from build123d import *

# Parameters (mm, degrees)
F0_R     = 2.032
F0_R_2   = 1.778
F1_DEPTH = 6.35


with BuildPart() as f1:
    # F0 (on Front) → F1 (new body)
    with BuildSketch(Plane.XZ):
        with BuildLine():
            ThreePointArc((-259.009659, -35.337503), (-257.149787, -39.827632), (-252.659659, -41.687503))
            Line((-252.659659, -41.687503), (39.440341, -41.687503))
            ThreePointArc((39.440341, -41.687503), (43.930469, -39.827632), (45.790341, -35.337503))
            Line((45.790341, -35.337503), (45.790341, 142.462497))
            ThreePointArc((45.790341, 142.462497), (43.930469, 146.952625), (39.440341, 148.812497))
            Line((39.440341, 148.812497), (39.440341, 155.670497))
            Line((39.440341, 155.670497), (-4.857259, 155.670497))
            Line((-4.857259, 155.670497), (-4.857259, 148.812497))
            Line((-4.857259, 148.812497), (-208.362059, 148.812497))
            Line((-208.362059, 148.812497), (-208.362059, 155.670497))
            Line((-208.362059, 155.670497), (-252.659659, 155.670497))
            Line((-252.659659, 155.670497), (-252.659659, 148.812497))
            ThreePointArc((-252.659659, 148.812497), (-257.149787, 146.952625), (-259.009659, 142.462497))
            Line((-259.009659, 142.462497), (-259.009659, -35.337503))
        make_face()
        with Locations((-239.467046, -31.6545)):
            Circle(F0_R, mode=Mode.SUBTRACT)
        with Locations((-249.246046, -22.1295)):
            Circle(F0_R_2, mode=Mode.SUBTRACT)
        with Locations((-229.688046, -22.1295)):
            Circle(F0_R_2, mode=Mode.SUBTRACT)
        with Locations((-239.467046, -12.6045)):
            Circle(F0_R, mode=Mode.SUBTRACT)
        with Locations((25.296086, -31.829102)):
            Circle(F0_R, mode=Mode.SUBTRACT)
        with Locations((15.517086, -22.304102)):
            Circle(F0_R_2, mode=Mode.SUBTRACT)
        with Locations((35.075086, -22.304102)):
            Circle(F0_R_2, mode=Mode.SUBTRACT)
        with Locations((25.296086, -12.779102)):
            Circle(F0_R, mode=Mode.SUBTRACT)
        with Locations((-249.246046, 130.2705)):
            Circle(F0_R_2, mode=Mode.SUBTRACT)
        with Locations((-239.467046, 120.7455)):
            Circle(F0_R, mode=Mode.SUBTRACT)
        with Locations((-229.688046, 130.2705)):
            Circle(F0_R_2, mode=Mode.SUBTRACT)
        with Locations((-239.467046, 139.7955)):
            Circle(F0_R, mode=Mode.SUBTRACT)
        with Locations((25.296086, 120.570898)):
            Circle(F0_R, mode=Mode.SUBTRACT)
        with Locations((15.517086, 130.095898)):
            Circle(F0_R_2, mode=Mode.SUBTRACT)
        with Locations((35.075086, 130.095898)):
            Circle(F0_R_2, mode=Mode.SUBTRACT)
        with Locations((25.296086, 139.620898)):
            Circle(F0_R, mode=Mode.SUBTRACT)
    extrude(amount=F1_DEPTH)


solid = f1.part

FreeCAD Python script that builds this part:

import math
import FreeCAD as App
import Part
import Sketcher
from FreeCAD import Vector
Q = App.Units.Quantity

doc = App.newDocument("Part")
body = doc.addObject("PartDesign::Body", "Body")

sketch1 = doc.addObject("Sketcher::SketchObject", "Sketch")
body.addObject(sketch1)
sketch1.AttachmentSupport = (doc.XZ_Plane, [""])
sketch1.MapMode = "FlatFace"
sketch1.addGeometry([
    Part.ArcOfCircle(Part.Circle(Vector(-252.7, -35.3, 0), Vector(0, 0, 1), 6.3), math.radians(180), math.radians(270)),
    Part.LineSegment(Vector(-252.7, -41.7, 0), Vector(39.4, -41.7, 0)),
    Part.ArcOfCircle(Part.Circle(Vector(39.4, -35.3, 0), Vector(0, 0, 1), 6.3), math.radians(-90), math.radians(0)),
    Part.LineSegment(Vector(45.8, -35.3, 0), Vector(45.8, 142.5, 0)),
    Part.ArcOfCircle(Part.Circle(Vector(39.4, 142.5, 0), Vector(0, 0, 1), 6.4), math.radians(0), math.radians(90)),
    Part.LineSegment(Vector(39.4, 148.8, 0), Vector(39.4, 155.7, 0)),
    Part.LineSegment(Vector(39.4, 155.7, 0), Vector(-4.9, 155.7, 0)),
    Part.LineSegment(Vector(-4.9, 155.7, 0), Vector(-4.9, 148.8, 0)),
    Part.LineSegment(Vector(-4.9, 148.8, 0), Vector(-208.4, 148.8, 0)),
    Part.LineSegment(Vector(-208.4, 148.8, 0), Vector(-208.4, 155.7, 0)),
    Part.LineSegment(Vector(-208.4, 155.7, 0), Vector(-252.7, 155.7, 0)),
    Part.LineSegment(Vector(-252.7, 155.7, 0), Vector(-252.7, 148.8, 0)),
    Part.ArcOfCircle(Part.Circle(Vector(-252.7, 142.5, 0), Vector(0, 0, 1), 6.4), math.radians(90), math.radians(180)),
    Part.LineSegment(Vector(-259, 142.5, 0), Vector(-259, -35.3, 0)),
    Part.Circle(Vector(-239.5, -31.7, 0), Vector(0, 0, 1), 2),
    Part.Circle(Vector(-249.2, -22.1, 0), Vector(0, 0, 1), 1.8),
    Part.Circle(Vector(-239.5, -12.6, 0), Vector(0, 0, 1), 2),
    Part.Circle(Vector(-229.7, -22.1, 0), Vector(0, 0, 1), 1.8),
    Part.Circle(Vector(25.3, -31.8, 0), Vector(0, 0, 1), 2),
    Part.Circle(Vector(15.5, -22.3, 0), Vector(0, 0, 1), 1.8),
    Part.Circle(Vector(35.1, -22.3, 0), Vector(0, 0, 1), 1.8),
    Part.Circle(Vector(25.3, -12.8, 0), Vector(0, 0, 1), 2),
    Part.Circle(Vector(-239.5, 120.7, 0), Vector(0, 0, 1), 2),
    Part.Circle(Vector(-249.2, 130.3, 0), Vector(0, 0, 1), 1.8),
    Part.Circle(Vector(-229.7, 130.3, 0), Vector(0, 0, 1), 1.8),
    Part.Circle(Vector(-239.5, 139.8, 0), Vector(0, 0, 1), 2),
    Part.Circle(Vector(15.5, 130.1, 0), Vector(0, 0, 1), 1.8),
    Part.Circle(Vector(25.3, 120.6, 0), Vector(0, 0, 1), 2),
    Part.Circle(Vector(35.1, 130.1, 0), Vector(0, 0, 1), 1.8),
    Part.Circle(Vector(25.3, 139.6, 0), Vector(0, 0, 1), 2),
], False)
sketch1.addConstraint([
    Sketcher.Constraint("Tangent", 0, 2, 1, 1),
    Sketcher.Constraint("Tangent", 1, 2, 2, 1),
    Sketcher.Constraint("Tangent", 2, 2, 3, 1),
    Sketcher.Constraint("Tangent", 3, 2, 4, 1),
    Sketcher.Constraint("Coincident", 4, 2, 5, 1),
    Sketcher.Constraint("Coincident", 5, 2, 6, 1),
    Sketcher.Constraint("Coincident", 6, 2, 7, 1),
    Sketcher.Constraint("Coincident", 7, 2, 8, 1),
    Sketcher.Constraint("Coincident", 8, 2, 9, 1),
    Sketcher.Constraint("Coincident", 9, 2, 10, 1),
    Sketcher.Constraint("Coincident", 10, 2, 11, 1),
    Sketcher.Constraint("Coincident", 11, 2, 12, 1),
    Sketcher.Constraint("Tangent", 12, 2, 13, 1),
    Sketcher.Constraint("Tangent", 13, 2, 0, 1),
    Sketcher.Constraint("Horizontal", 1),
    Sketcher.Constraint("Vertical", 3),
    Sketcher.Constraint("Vertical", 5),
    Sketcher.Constraint("Horizontal", 6),
    Sketcher.Constraint("Vertical", 7),
    Sketcher.Constraint("Horizontal", 8),
    Sketcher.Constraint("Vertical", 9),
    Sketcher.Constraint("Horizontal", 10),
    Sketcher.Constraint("Vertical", 11),
    Sketcher.Constraint("Vertical", 13),
    Sketcher.Constraint("Equal", 0, 2),
    Sketcher.Constraint("Equal", 2, 4),
    Sketcher.Constraint("Equal", 4, 12),
    Sketcher.Constraint("Equal", 14, 16),
    Sketcher.Constraint("Equal", 15, 17),
    Sketcher.Constraint("Equal", 16, 18),
    Sketcher.Constraint("Equal", 17, 19),
    Sketcher.Constraint("Equal", 19, 20),
    Sketcher.Constraint("Equal", 18, 21),
    Sketcher.Constraint("Equal", 21, 22),
    Sketcher.Constraint("Equal", 20, 23),
    Sketcher.Constraint("Equal", 23, 24),
    Sketcher.Constraint("Equal", 22, 25),
    Sketcher.Constraint("Equal", 24, 26),
    Sketcher.Constraint("Equal", 25, 27),
    Sketcher.Constraint("Equal", 26, 28),
    Sketcher.Constraint("Equal", 27, 29),
    Sketcher.Constraint("Horizontal", 4, 3, 12, 3),
    Sketcher.Constraint("Horizontal", 15, 3, 17, 3),
    Sketcher.Constraint("Horizontal", 19, 3, 20, 3),
    Sketcher.Constraint("Horizontal", 23, 3, 24, 3),
    Sketcher.Constraint("Horizontal", 26, 3, 28, 3),
    Sketcher.Constraint("Horizontal", 4, 2, 7, 2),
    Sketcher.Constraint("Horizontal", 6, 2, 9, 2),
    Sketcher.Constraint("Vertical", 14, 3, 16, 3),
    Sketcher.Constraint("Vertical", 18, 3, 21, 3),
    Sketcher.Constraint("Vertical", 16, 3, 22, 3),
    Sketcher.Constraint("Vertical", 15, 3, 23, 3),
    Sketcher.Constraint("Vertical", 17, 3, 24, 3),
    Sketcher.Constraint("Vertical", 22, 3, 25, 3),
    Sketcher.Constraint("Vertical", 19, 3, 26, 3),
    Sketcher.Constraint("Vertical", 21, 3, 27, 3),
    Sketcher.Constraint("Vertical", 20, 3, 28, 3),
    Sketcher.Constraint("Vertical", 27, 3, 29, 3),
    Sketcher.Constraint("Vertical", 1, 2, 4, 2),
    Sketcher.Constraint("Vertical", 0, 2, 10, 2),
    Sketcher.Constraint("Equal", 6, 10),
    Sketcher.Constraint("Diameter", 14, Q("0.16 in")),
    Sketcher.Constraint("Diameter", 15, Q("0.14 in")),
    Sketcher.Constraint("DistanceY", 3, 1, 3, 2, Q("7 in")),
    Sketcher.Constraint("Radius", 0, Q("0.2499999 in")),
    Sketcher.Constraint("DistanceX", 1, 1, 1, 2, Q("11.5 in")),
    Sketcher.Constraint("DistanceY", 14, 3, 22, 3, Q("6 in")),
    Sketcher.Constraint("DistanceY", 15, 3, 23, 3, Q("6 in")),
    Sketcher.Constraint("DistanceY", 16, 3, 25, 3, Q("6 in")),
    Sketcher.Constraint("DistanceY", 19, 3, 26, 3, Q("6 in")),
    Sketcher.Constraint("DistanceY", 21, 3, 29, 3, Q("6 in")),
    Sketcher.Constraint("DistanceY", 24, 3, 9, 2, Q("0.9999999 in")),
    Sketcher.Constraint("DistanceY", 5, 1, 5, 2, Q("0.27 in")),
    Sketcher.Constraint("DistanceX", 6, 2, 6, 1, Q("1.744 in")),
    Sketcher.Constraint("DistanceY", 14, 3, 16, 3, Q("0.75 in")),
    Sketcher.Constraint("DistanceX", 15, 3, 17, 3, Q("0.77 in")),
    Sketcher.Constraint("DistanceX", 19, 3, 20, 3, Q("0.77 in")),
    Sketcher.Constraint("DistanceY", 18, 3, 21, 3, Q("0.75 in")),
    Sketcher.Constraint("DistanceY", 21, 3, 27, 3, Q("5.25 in")),
    Sketcher.Constraint("DistanceY", 0, 3, 14, 3, Q("0.1450002 in")),
    Sketcher.Constraint("DistanceX", 15, 3, 14, 3, Q("0.385 in")),
    Sketcher.Constraint("DistanceX", 19, 3, 18, 3, Q("0.385 in")),
    Sketcher.Constraint("DistanceY", 18, 3, 19, 3, Q("0.375 in")),
    Sketcher.Constraint("DistanceY", 14, 3, -1, 1, 31.6545),
    Sketcher.Constraint("DistanceY", 18, 3, -1, 1, 31.829102),
    Sketcher.Constraint("DistanceX", 0, 3, -1, 1, 252.659661),
    Sketcher.Constraint("DistanceX", 14, 3, 2, 3, 278.907389),
    Sketcher.Constraint("DistanceX", 14, 3, 18, 3, 264.763132),
])
pad1 = doc.addObject("PartDesign::Pad", "Pad")
body.addObject(pad1)
pad1.Profile = sketch1
pad1.Length = Q("0.25 in")

doc.recompute()
